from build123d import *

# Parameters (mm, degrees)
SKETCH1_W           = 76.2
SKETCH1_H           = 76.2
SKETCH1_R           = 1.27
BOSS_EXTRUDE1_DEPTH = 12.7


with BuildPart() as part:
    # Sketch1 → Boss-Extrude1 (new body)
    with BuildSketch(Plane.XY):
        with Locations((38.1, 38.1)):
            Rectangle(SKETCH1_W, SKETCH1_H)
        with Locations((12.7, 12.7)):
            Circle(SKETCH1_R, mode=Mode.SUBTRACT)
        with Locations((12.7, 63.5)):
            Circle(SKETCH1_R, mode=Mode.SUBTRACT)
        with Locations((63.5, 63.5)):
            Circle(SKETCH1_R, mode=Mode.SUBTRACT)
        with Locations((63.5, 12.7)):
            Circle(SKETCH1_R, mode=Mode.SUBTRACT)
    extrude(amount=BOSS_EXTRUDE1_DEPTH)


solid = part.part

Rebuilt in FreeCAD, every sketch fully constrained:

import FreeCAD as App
import Part
import Sketcher
Q = App.Units.Quantity

doc = App.newDocument("Part")
params = doc.addObject("Spreadsheet::Sheet", "Params")
for row, (alias, value) in enumerate([
    ("sketch1_diameter", "0.1 in"),
    ("sketch1_width", "3 in"),
    ("pad1_length", "0.5 in"),
], start=1):
    params.set(f"A{row}", alias)
    params.set(f"B{row}", "=" + value)
    params.setAlias(f"B{row}", alias)

body = doc.addObject("PartDesign::Body", "Body")

# Sketch on XY plane
sketch1 = body.newObject("Sketcher::SketchObject", "Sketch")
sketch1.AttachmentSupport = (doc.getObject("XY_Plane"), [""])
sketch1.MapMode = "FlatFace"
sketch1.addGeometry([
    Part.LineSegment(App.Vector(0, 76.2, 0), App.Vector(0, 0, 0)),  # 0
    Part.LineSegment(App.Vector(0, 0, 0), App.Vector(76.2, 0, 0)),  # 1
    Part.LineSegment(App.Vector(76.2, 0, 0), App.Vector(76.2, 76.2, 0)),  # 2
    Part.LineSegment(App.Vector(76.2, 76.2, 0), App.Vector(0, 76.2, 0)),  # 3
    Part.Circle(App.Vector(12.7, 12.7, 0), App.Vector(0, 0, 1), 1.3),  # 4
    Part.Circle(App.Vector(63.5, 12.7, 0), App.Vector(0, 0, 1), 1.3),  # 5
    Part.Circle(App.Vector(12.7, 63.5, 0), App.Vector(0, 0, 1), 1.3),  # 6
    Part.Circle(App.Vector(63.5, 63.5, 0), App.Vector(0, 0, 1), 1.3),  # 7
], False)
sketch1.addConstraint([
    Sketcher.Constraint("Coincident", 0, 2, 1, 1),
    Sketcher.Constraint("Coincident", 1, 2, 2, 1),
    Sketcher.Constraint("Coincident", 2, 2, 3, 1),
    Sketcher.Constraint("Coincident", 3, 2, 0, 1),
    Sketcher.Constraint("Vertical", 0),
    Sketcher.Constraint("Horizontal", 1),
    Sketcher.Constraint("Vertical", 2),
    Sketcher.Constraint("Horizontal", 3),
    Sketcher.Constraint("Coincident", 0, 2, -1, 1),
    Sketcher.Constraint("Equal", 4, 5),
    Sketcher.Constraint("Equal", 5, 6),
    Sketcher.Constraint("Equal", 6, 7),
    Sketcher.Constraint("Horizontal", 4, 3, 5, 3),
    Sketcher.Constraint("Horizontal", 6, 3, 7, 3),
    Sketcher.Constraint("Vertical", 4, 3, 6, 3),
    Sketcher.Constraint("Vertical", 5, 3, 7, 3),
    Sketcher.Constraint("Equal", 3, 0),
    Sketcher.Constraint("Diameter", 4, Q("0.1 in")),
    Sketcher.Constraint("DistanceX", 1, 1, 1, 2, Q("3 in")),
    Sketcher.Constraint("DistanceX", 4, 3, 5, 3, Q("2 in")),
    Sketcher.Constraint("DistanceY", 4, 3, 6, 3, Q("2 in")),
    Sketcher.Constraint("DistanceX", -1, 1, 4, 3, Q("0.5 in")),
    Sketcher.Constraint("DistanceY", -1, 1, 4, 3, Q("0.5 in")),
])
sketch1.setExpression("Constraints[17]", "Params.sketch1_diameter")
sketch1.setExpression("Constraints[18]", "Params.sketch1_width")
pad1 = body.newObject("PartDesign::Pad", "Pad")
pad1.Profile = sketch1
pad1.setExpression("Length", "Params.pad1_length")

doc.recompute()
